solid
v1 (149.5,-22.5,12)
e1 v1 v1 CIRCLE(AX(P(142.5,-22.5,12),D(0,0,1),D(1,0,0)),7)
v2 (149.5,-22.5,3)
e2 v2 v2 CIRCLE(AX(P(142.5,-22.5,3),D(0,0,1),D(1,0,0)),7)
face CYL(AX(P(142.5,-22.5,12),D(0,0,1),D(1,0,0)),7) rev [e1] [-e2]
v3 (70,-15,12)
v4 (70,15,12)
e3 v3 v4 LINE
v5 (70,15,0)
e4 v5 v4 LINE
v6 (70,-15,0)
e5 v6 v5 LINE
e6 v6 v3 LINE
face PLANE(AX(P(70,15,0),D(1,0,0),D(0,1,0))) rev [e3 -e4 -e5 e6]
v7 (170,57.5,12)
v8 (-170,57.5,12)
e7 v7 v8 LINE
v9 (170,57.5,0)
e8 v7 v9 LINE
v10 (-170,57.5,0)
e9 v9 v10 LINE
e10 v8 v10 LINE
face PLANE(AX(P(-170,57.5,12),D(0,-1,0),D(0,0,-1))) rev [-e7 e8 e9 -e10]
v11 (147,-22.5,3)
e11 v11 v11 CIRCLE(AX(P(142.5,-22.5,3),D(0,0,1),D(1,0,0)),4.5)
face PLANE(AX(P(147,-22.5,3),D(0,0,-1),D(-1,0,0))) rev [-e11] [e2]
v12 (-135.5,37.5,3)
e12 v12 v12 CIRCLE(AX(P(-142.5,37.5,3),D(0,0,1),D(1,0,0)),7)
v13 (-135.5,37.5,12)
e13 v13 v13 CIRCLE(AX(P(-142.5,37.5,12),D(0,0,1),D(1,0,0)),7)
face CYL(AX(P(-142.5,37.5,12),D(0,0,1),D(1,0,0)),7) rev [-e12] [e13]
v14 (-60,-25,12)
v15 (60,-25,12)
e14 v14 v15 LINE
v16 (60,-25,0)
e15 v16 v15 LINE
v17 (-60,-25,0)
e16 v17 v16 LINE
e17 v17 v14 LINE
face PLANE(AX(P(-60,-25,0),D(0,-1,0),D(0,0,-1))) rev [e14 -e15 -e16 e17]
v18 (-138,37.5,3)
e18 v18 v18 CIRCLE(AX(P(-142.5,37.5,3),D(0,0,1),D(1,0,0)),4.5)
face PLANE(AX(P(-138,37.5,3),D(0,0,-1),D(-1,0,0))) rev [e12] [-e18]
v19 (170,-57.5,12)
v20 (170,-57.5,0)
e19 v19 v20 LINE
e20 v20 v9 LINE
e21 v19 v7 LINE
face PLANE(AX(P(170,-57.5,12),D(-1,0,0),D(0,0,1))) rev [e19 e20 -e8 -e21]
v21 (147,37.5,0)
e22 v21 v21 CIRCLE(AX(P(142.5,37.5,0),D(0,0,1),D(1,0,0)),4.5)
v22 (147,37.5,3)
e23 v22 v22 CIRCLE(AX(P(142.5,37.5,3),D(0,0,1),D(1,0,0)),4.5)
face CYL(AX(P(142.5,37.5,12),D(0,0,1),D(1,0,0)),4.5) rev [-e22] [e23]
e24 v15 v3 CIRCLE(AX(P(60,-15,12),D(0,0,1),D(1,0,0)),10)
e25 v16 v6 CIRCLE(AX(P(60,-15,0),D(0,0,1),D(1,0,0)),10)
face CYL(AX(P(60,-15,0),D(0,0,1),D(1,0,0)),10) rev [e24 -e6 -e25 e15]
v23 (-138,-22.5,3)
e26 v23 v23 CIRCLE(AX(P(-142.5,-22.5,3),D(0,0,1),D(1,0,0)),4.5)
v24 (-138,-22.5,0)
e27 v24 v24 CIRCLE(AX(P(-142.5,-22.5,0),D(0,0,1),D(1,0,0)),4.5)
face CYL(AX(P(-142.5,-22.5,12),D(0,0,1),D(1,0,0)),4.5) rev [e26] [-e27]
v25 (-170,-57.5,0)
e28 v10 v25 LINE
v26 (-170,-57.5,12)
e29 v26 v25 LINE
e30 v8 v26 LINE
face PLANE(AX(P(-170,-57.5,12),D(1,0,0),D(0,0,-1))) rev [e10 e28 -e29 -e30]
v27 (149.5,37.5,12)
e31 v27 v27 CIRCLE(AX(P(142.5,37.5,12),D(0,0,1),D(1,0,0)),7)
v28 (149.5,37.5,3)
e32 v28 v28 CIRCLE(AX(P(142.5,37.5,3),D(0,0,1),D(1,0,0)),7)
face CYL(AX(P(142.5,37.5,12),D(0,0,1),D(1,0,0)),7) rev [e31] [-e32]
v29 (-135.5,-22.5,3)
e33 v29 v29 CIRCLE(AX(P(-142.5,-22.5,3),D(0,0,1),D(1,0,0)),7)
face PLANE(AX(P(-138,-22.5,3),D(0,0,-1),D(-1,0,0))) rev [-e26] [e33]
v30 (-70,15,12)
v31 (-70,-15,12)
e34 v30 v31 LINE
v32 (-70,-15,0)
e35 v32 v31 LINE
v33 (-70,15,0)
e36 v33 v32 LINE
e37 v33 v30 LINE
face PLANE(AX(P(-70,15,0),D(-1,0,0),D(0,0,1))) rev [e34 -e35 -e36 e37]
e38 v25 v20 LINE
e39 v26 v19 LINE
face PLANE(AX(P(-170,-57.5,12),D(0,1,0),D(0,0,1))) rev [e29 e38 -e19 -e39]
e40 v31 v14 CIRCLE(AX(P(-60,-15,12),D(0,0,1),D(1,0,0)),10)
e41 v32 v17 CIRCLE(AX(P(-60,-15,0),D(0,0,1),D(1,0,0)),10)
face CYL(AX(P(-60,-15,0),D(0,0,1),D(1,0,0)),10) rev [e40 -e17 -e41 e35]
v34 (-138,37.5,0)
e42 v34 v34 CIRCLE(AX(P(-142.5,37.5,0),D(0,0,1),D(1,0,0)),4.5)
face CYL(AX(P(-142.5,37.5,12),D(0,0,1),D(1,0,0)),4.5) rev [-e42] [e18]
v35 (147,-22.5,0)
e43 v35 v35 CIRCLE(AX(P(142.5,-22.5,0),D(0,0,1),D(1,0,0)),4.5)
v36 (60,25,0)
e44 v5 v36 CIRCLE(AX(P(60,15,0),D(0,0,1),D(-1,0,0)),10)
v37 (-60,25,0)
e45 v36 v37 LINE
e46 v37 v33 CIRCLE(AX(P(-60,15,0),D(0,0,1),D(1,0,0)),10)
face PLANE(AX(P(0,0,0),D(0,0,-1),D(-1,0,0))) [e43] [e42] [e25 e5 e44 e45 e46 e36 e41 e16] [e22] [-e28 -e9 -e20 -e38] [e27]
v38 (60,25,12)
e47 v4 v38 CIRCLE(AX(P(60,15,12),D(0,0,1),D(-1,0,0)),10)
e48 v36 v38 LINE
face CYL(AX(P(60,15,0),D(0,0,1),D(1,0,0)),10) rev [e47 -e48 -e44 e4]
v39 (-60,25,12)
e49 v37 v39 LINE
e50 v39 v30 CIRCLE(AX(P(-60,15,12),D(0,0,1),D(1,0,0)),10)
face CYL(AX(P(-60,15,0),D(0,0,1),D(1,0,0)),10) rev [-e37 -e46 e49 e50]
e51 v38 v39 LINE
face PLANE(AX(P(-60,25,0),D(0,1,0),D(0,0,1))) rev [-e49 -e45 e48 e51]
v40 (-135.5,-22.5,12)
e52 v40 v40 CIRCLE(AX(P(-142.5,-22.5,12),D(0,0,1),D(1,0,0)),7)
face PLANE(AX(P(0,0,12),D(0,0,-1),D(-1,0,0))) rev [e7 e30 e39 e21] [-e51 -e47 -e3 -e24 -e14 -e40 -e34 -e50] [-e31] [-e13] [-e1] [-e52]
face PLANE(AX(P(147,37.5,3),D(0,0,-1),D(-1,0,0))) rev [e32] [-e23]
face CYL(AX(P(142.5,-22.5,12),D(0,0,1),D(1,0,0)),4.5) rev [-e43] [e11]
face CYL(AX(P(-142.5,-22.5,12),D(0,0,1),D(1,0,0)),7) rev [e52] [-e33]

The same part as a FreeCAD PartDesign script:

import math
import FreeCAD as App
import Part
import Sketcher

V = App.Vector
Q = App.Units.Quantity


def add_polygon(sketch, points):
    """Adds a closed chain of lines whose ends are joined by coincident constraints."""
    first, n = sketch.GeometryCount, len(points)
    for a, b in zip(points, points[1:] + points[:1]):
        sketch.addGeometry(Part.LineSegment(App.Vector(*a, 0), App.Vector(*b, 0)), False)
    for i in range(n):
        sketch.addConstraint(Sketcher.Constraint("Coincident", first + i, 2, first + (i + 1) % n, 1))

doc = App.newDocument("Part")
params = doc.addObject("Spreadsheet::Sheet", "Params")
for row, (alias, value) in enumerate([
    ("sketch1_width", "340 mm"),
    ("sketch1_height", "115 mm"),
    ("pad1_length", "12 mm"),
    ("sketch2_diameter", "9 mm"),
    ("hole_diameter", "9 mm"),
    ("hole_cbore_diameter", "14 mm"),
    ("hole_cbore_depth", "9 mm"),
    ("sketch3_radius", "10 mm"),
    ("sketch3_width", "120 mm"),
    ("sketch3_height", "30 mm"),
], start=1):
    params.set(f"A{row}", alias)
    params.set(f"B{row}", "=" + value)
    params.setAlias(f"B{row}", alias)

body = doc.addObject("PartDesign::Body", "Body")

sketch1 = body.newObject("Sketcher::SketchObject", "Sketch")
sketch1.AttachmentSupport = (doc.getObject("XY_Plane"), [""])
sketch1.MapMode = "FlatFace"
add_polygon(sketch1, [(-170, 58), (-170, -58), (170, -58), (170, 58)])
sketch1.addConstraint(Sketcher.Constraint("Vertical", 0))
sketch1.addConstraint(Sketcher.Constraint("Horizontal", 1))
sketch1.addConstraint(Sketcher.Constraint("Vertical", 2))
sketch1.addConstraint(Sketcher.Constraint("Horizontal", 3))
sketch1.addConstraint(Sketcher.Constraint("Symmetric", 0, 2, 2, 2, -1, 1))
sketch1.addConstraint(Sketcher.Constraint("DistanceX", 1, 1, 1, 2, Q("340 mm")))
sketch1.addConstraint(Sketcher.Constraint("DistanceY", 0, 2, 0, 1, Q("115 mm")))
sketch1.setExpression("Constraints[9]", "Params.sketch1_width")
sketch1.setExpression("Constraints[10]", "Params.sketch1_height")
pad1 = body.newObject("PartDesign::Pad", "Pad")
pad1.Profile = sketch1
pad1.setExpression("Length", "Params.pad1_length")

sketch2 = body.newObject("Sketcher::SketchObject", "Sketch001")
sketch2.AttachmentSupport = (doc.getObject("XY_Plane"), [""])
sketch2.MapMode = "FlatFace"
sketch2.AttachmentOffset = App.Placement(V(0, 0, 12), App.Rotation())
sketch2.addGeometry(Part.Circle(V(-142.5, 37.5, 0), V(0, 0, 1), 4.5), False)
sketch2.addGeometry(Part.Circle(V(142.5, 37.5, 0), V(0, 0, 1), 4.5), False)
sketch2.addGeometry(Part.Circle(V(142.5, -22.5, 0), V(0, 0, 1), 4.5), False)
sketch2.addGeometry(Part.Circle(V(-142.5, -22.5, 0), V(0, 0, 1), 4.5), False)
sketch2.addConstraint(Sketcher.Constraint("Equal", 0, 1))
sketch2.addConstraint(Sketcher.Constraint("Equal", 1, 2))
sketch2.addConstraint(Sketcher.Constraint("Equal", 2, 3))
sketch2.addConstraint(Sketcher.Constraint("Symmetric", 0, 3, 1, 3, -2))
sketch2.addConstraint(Sketcher.Constraint("Symmetric", 2, 3, 3, 3, -2))
sketch2.addConstraint(Sketcher.Constraint("Vertical", 1, 3, 2, 3))
sketch2.addConstraint(Sketcher.Constraint("Diameter", 0, Q("9 mm")))
sketch2.addConstraint(Sketcher.Constraint("DistanceX", 0, 3, 1, 3, Q("285 mm")))
sketch2.addConstraint(Sketcher.Constraint("DistanceY", 2, 3, 1, 3, Q("60 mm")))
sketch2.addConstraint(Sketcher.Constraint("DistanceY", -1, 1, 0, 3, Q("37.5 mm")))
sketch2.setExpression("Constraints[6]", "Params.sketch2_diameter")
doc.recompute()
hole = body.newObject("PartDesign::Hole", "Hole")
hole.Profile = sketch2
hole.ThreadType = "None"
hole.setExpression("Diameter", "Params.hole_diameter")
hole.DepthType = "ThroughAll"
hole.HoleCutType = "Counterbore"
hole.setExpression("HoleCutDiameter", "Params.hole_cbore_diameter")
hole.setExpression("HoleCutDepth", "Params.hole_cbore_depth")

sketch3 = body.newObject("Sketcher::SketchObject", "Sketch002")
sketch3.AttachmentSupport = (doc.getObject("XY_Plane"), [""])
sketch3.MapMode = "FlatFace"
sketch3.AttachmentOffset = App.Placement(V(0, 0, 12), App.Rotation())
sketch3.addGeometry(Part.LineSegment(V(60, 25, 0), V(-60, 25, 0)), False)
sketch3.addGeometry(Part.ArcOfCircle(Part.Circle(V(-60, 15, 0), V(0, 0, 1), 10), math.radians(90), math.radians(180)), False)
sketch3.addGeometry(Part.LineSegment(V(-70, 15, 0), V(-70, -15, 0)), False)
sketch3.addGeometry(Part.ArcOfCircle(Part.Circle(V(-60, -15, 0), V(0, 0, 1), 10), math.radians(180), math.radians(270)), False)
sketch3.addGeometry(Part.LineSegment(V(-60, -25, 0), V(60, -25, 0)), False)
sketch3.addGeometry(Part.ArcOfCircle(Part.Circle(V(60, -15, 0), V(0, 0, 1), 10), math.radians(-90), math.radians(0)), False)
sketch3.addGeometry(Part.LineSegment(V(70, -15, 0), V(70, 15, 0)), False)
sketch3.addGeometry(Part.ArcOfCircle(Part.Circle(V(60, 15, 0), V(0, 0, 1), 10), math.radians(0), math.radians(90)), False)
sketch3.addConstraint(Sketcher.Constraint("Tangent", 0, 2, 1, 1))
sketch3.addConstraint(Sketcher.Constraint("Tangent", 1, 2, 2, 1))
sketch3.addConstraint(Sketcher.Constraint("Tangent", 2, 2, 3, 1))
sketch3.addConstraint(Sketcher.Constraint("Tangent", 3, 2, 4, 1))
sketch3.addConstraint(Sketcher.Constraint("Tangent", 4, 2, 5, 1))
sketch3.addConstraint(Sketcher.Constraint("Tangent", 5, 2, 6, 1))
sketch3.addConstraint(Sketcher.Constraint("Tangent", 6, 2, 7, 1))
sketch3.addConstraint(Sketcher.Constraint("Tangent", 7, 2, 0, 1))
sketch3.addConstraint(Sketcher.Constraint("Horizontal", 0))
sketch3.addConstraint(Sketcher.Constraint("Vertical", 2))
sketch3.addConstraint(Sketcher.Constraint("Horizontal", 4))
sketch3.addConstraint(Sketcher.Constraint("Vertical", 6))
sketch3.addConstraint(Sketcher.Constraint("Equal", 1, 3))
sketch3.addConstraint(Sketcher.Constraint("Equal", 3, 5))
sketch3.addConstraint(Sketcher.Constraint("Equal", 5, 7))
sketch3.addConstraint(Sketcher.Constraint("Symmetric", 1, 3, 5, 3, -1, 1))
sketch3.addConstraint(Sketcher.Constraint("Radius", 1, Q("10 mm")))
sketch3.addConstraint(Sketcher.Constraint("DistanceX", 0, 2, 0, 1, Q("120 mm")))
sketch3.addConstraint(Sketcher.Constraint("DistanceY", 2, 2, 2, 1, Q("30 mm")))
sketch3.setExpression("Constraints[16]", "Params.sketch3_radius")
sketch3.setExpression("Constraints[17]", "Params.sketch3_width")
sketch3.setExpression("Constraints[18]", "Params.sketch3_height")
pocket1 = body.newObject("PartDesign::Pocket", "Pocket")
pocket1.Profile = sketch3
pocket1.Type = "ThroughAll"

doc.recompute()
